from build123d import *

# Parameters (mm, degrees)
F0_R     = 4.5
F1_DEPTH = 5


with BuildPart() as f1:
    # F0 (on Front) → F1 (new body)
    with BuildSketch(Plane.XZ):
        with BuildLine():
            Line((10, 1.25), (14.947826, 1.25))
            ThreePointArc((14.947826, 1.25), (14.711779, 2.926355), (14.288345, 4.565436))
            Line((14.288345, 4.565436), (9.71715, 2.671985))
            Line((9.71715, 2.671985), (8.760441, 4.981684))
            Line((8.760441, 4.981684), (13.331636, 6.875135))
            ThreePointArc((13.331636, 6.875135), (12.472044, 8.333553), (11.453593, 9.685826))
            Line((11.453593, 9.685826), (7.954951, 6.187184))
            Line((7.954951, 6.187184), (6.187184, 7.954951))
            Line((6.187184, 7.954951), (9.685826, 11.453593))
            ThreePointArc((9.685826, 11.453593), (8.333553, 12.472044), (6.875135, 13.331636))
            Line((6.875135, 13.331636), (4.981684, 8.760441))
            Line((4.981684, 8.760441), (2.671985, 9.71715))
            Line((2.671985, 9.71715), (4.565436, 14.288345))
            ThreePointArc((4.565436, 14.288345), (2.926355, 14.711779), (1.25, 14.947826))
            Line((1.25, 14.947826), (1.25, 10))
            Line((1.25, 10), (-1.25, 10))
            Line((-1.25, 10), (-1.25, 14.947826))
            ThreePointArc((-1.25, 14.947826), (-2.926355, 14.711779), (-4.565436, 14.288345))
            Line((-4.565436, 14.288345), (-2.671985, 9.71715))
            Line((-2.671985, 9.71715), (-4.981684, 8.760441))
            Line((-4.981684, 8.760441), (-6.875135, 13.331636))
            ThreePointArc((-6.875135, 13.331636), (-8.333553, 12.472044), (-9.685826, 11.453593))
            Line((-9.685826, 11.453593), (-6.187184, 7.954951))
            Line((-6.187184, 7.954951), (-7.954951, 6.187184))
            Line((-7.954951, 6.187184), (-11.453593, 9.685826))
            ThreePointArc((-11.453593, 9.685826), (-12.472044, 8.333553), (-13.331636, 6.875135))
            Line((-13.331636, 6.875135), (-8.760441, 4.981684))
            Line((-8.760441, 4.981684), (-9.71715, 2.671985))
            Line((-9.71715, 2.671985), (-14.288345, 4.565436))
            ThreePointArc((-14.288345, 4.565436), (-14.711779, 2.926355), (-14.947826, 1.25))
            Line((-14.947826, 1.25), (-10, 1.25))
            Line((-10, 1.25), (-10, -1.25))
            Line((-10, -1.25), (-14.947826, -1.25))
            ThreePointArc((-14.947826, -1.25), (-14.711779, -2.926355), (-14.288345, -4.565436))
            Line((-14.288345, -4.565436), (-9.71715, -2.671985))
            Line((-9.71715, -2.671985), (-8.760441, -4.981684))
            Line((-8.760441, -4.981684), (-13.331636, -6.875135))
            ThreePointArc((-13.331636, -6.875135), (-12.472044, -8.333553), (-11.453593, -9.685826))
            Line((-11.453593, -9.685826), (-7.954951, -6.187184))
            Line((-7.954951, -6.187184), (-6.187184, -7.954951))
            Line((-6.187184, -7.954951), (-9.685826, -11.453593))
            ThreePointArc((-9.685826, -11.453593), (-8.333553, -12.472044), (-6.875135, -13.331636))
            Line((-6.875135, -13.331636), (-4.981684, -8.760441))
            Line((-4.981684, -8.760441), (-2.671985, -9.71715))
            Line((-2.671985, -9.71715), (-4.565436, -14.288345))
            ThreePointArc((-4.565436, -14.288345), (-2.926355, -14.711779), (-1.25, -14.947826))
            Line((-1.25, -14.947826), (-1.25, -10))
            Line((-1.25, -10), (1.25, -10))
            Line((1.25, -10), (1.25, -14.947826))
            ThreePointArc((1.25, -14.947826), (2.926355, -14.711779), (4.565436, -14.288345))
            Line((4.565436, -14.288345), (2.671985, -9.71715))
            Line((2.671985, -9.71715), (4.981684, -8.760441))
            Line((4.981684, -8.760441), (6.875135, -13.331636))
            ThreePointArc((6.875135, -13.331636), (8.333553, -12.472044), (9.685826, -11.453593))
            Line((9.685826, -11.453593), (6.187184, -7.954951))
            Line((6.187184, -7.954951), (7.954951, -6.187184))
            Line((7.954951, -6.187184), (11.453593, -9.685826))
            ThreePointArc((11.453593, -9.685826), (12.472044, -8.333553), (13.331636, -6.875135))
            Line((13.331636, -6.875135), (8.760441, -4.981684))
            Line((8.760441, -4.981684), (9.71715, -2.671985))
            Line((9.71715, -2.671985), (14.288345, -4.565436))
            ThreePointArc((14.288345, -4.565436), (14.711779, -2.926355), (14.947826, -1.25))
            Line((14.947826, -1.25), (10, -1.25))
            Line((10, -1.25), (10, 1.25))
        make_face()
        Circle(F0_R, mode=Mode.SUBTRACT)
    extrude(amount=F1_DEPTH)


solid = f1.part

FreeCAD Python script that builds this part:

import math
import FreeCAD as App
import Part
import Sketcher
Q = App.Units.Quantity

doc = App.newDocument("Part")
body = doc.addObject("PartDesign::Body", "Body")

sketch1 = body.newObject("Sketcher::SketchObject", "Sketch")
sketch1.AttachmentSupport = (doc.getObject("XZ_Plane"), [""])
sketch1.MapMode = "FlatFace"
sketch1.addGeometry(Part.LineSegment(App.Vector(10, 1.25, 0), App.Vector(14.947826, 1.25, 0)), False)
sketch1.addGeometry(Part.ArcOfCircle(Part.Circle(App.Vector(-0.000054, -0.00001, 0), App.Vector(0, 0, 1), 15.000055), math.radians(4.780212), math.radians(17.719781)), False)
sketch1.addGeometry(Part.LineSegment(App.Vector(14.288345, 4.565436, 0), App.Vector(9.71715, 2.671985, 0)), False)
sketch1.addGeometry(Part.LineSegment(App.Vector(9.71715, 2.671985, 0), App.Vector(8.760441, 4.981684, 0)), False)
sketch1.addGeometry(Part.LineSegment(App.Vector(8.760441, 4.981684, 0), App.Vector(13.331636, 6.875135, 0)), False)
sketch1.addGeometry(Part.ArcOfCircle(Part.Circle(App.Vector(-0.000096, -0.000061, 0), App.Vector(0, 0, 1), 15.000113), math.radians(27.280232), math.radians(40.219749)), False)
sketch1.addGeometry(Part.LineSegment(App.Vector(11.453593, 9.685826, 0), App.Vector(7.954951, 6.187184, 0)), False)
sketch1.addGeometry(Part.LineSegment(App.Vector(7.954951, 6.187184, 0), App.Vector(6.187184, 7.954951, 0)), False)
sketch1.addGeometry(Part.LineSegment(App.Vector(6.187184, 7.954951, 0), App.Vector(9.685826, 11.453593, 0)), False)
sketch1.addGeometry(Part.ArcOfCircle(Part.Circle(App.Vector(-0.000061, -0.000096, 0), App.Vector(0, 0, 1), 15.000113), math.radians(49.780251), math.radians(62.719768)), False)
sketch1.addGeometry(Part.LineSegment(App.Vector(6.875135, 13.331636, 0), App.Vector(4.981684, 8.760441, 0)), False)
sketch1.addGeometry(Part.LineSegment(App.Vector(4.981684, 8.760441, 0), App.Vector(2.671985, 9.71715, 0)), False)
sketch1.addGeometry(Part.LineSegment(App.Vector(2.671985, 9.71715, 0), App.Vector(4.565436, 14.288345, 0)), False)
sketch1.addGeometry(Part.ArcOfCircle(Part.Circle(App.Vector(-0.00001, -0.000054, 0), App.Vector(0, 0, 1), 15.000055), math.radians(72.280219), math.radians(85.219788)), False)
sketch1.addGeometry(Part.LineSegment(App.Vector(1.25, 14.947826, 0), App.Vector(1.25, 10, 0)), False)
sketch1.addGeometry(Part.LineSegment(App.Vector(1.25, 10, 0), App.Vector(-1.25, 10, 0)), False)
sketch1.addGeometry(Part.LineSegment(App.Vector(-1.25, 10, 0), App.Vector(-1.25, 14.947826, 0)), False)
sketch1.addGeometry(Part.ArcOfCircle(Part.Circle(App.Vector(0.00001, -0.000054, 0), App.Vector(0, 0, 1), 15.000055), math.radians(94.780212), math.radians(107.719781)), False)
sketch1.addGeometry(Part.LineSegment(App.Vector(-4.565436, 14.288345, 0), App.Vector(-2.671985, 9.71715, 0)), False)
sketch1.addGeometry(Part.LineSegment(App.Vector(-2.671985, 9.71715, 0), App.Vector(-4.981684, 8.760441, 0)), False)
sketch1.addGeometry(Part.LineSegment(App.Vector(-4.981684, 8.760441, 0), App.Vector(-6.875135, 13.331636, 0)), False)
sketch1.addGeometry(Part.ArcOfCircle(Part.Circle(App.Vector(0.000061, -0.000096, 0), App.Vector(0, 0, 1), 15.000113), math.radians(117.280232), math.radians(130.219749)), False)
sketch1.addGeometry(Part.LineSegment(App.Vector(-9.685826, 11.453593, 0), App.Vector(-6.187184, 7.954951, 0)), False)
sketch1.addGeometry(Part.LineSegment(App.Vector(-6.187184, 7.954951, 0), App.Vector(-7.954951, 6.187184, 0)), False)
sketch1.addGeometry(Part.LineSegment(App.Vector(-7.954951, 6.187184, 0), App.Vector(-11.453593, 9.685826, 0)), False)
sketch1.addGeometry(Part.ArcOfCircle(Part.Circle(App.Vector(0.000096, -0.000061, 0), App.Vector(0, 0, 1), 15.000113), math.radians(139.780251), math.radians(152.719768)), False)
sketch1.addGeometry(Part.LineSegment(App.Vector(-13.331636, 6.875135, 0), App.Vector(-8.760441, 4.981684, 0)), False)
sketch1.addGeometry(Part.LineSegment(App.Vector(-8.760441, 4.981684, 0), App.Vector(-9.71715, 2.671985, 0)), False)
sketch1.addGeometry(Part.LineSegment(App.Vector(-9.71715, 2.671985, 0), App.Vector(-14.288345, 4.565436, 0)), False)
sketch1.addGeometry(Part.ArcOfCircle(Part.Circle(App.Vector(0.000054, -0.00001, 0), App.Vector(0, 0, 1), 15.000055), math.radians(162.280219), math.radians(175.219788)), False)
sketch1.addGeometry(Part.LineSegment(App.Vector(-14.947826, 1.25, 0), App.Vector(-10, 1.25, 0)), False)
sketch1.addGeometry(Part.LineSegment(App.Vector(-10, 1.25, 0), App.Vector(-10, -1.25, 0)), False)
sketch1.addGeometry(Part.LineSegment(App.Vector(-10, -1.25, 0), App.Vector(-14.947826, -1.25, 0)), False)
sketch1.addGeometry(Part.ArcOfCircle(Part.Circle(App.Vector(0.000054, 0.00001, 0), App.Vector(0, 0, 1), 15.000055), math.radians(-175.219788), math.radians(-162.280219)), False)
sketch1.addGeometry(Part.LineSegment(App.Vector(-14.288345, -4.565436, 0), App.Vector(-9.71715, -2.671985, 0)), False)
sketch1.addGeometry(Part.LineSegment(App.Vector(-9.71715, -2.671985, 0), App.Vector(-8.760441, -4.981684, 0)), False)
sketch1.addGeometry(Part.LineSegment(App.Vector(-8.760441, -4.981684, 0), App.Vector(-13.331636, -6.875135, 0)), False)
sketch1.addGeometry(Part.ArcOfCircle(Part.Circle(App.Vector(0.000096, 0.000061, 0), App.Vector(0, 0, 1), 15.000113), math.radians(-152.719768), math.radians(-139.780251)), False)
sketch1.addGeometry(Part.LineSegment(App.Vector(-11.453593, -9.685826, 0), App.Vector(-7.954951, -6.187184, 0)), False)
sketch1.addGeometry(Part.LineSegment(App.Vector(-7.954951, -6.187184, 0), App.Vector(-6.187184, -7.954951, 0)), False)
sketch1.addGeometry(Part.LineSegment(App.Vector(-6.187184, -7.954951, 0), App.Vector(-9.685826, -11.453593, 0)), False)
sketch1.addGeometry(Part.ArcOfCircle(Part.Circle(App.Vector(0.000061, 0.000096, 0), App.Vector(0, 0, 1), 15.000113), math.radians(-130.219749), math.radians(-117.280232)), False)
sketch1.addGeometry(Part.LineSegment(App.Vector(-6.875135, -13.331636, 0), App.Vector(-4.981684, -8.760441, 0)), False)
sketch1.addGeometry(Part.LineSegment(App.Vector(-4.981684, -8.760441, 0), App.Vector(-2.671985, -9.71715, 0)), False)
sketch1.addGeometry(Part.LineSegment(App.Vector(-2.671985, -9.71715, 0), App.Vector(-4.565436, -14.288345, 0)), False)
sketch1.addGeometry(Part.ArcOfCircle(Part.Circle(App.Vector(0.00001, 0.000054, 0), App.Vector(0, 0, 1), 15.000055), math.radians(-107.719781), math.radians(-94.780212)), False)
sketch1.addGeometry(Part.LineSegment(App.Vector(-1.25, -14.947826, 0), App.Vector(-1.25, -10, 0)), False)
sketch1.addGeometry(Part.LineSegment(App.Vector(-1.25, -10, 0), App.Vector(1.25, -10, 0)), False)
sketch1.addGeometry(Part.LineSegment(App.Vector(1.25, -10, 0), App.Vector(1.25, -14.947826, 0)), False)
sketch1.addGeometry(Part.ArcOfCircle(Part.Circle(App.Vector(-0.00001, 0.000054, 0), App.Vector(0, 0, 1), 15.000055), math.radians(-85.219788), math.radians(-72.280219)), False)
sketch1.addGeometry(Part.LineSegment(App.Vector(4.565436, -14.288345, 0), App.Vector(2.671985, -9.71715, 0)), False)
sketch1.addGeometry(Part.LineSegment(App.Vector(2.671985, -9.71715, 0), App.Vector(4.981684, -8.760441, 0)), False)
sketch1.addGeometry(Part.LineSegment(App.Vector(4.981684, -8.760441, 0), App.Vector(6.875135, -13.331636, 0)), False)
sketch1.addGeometry(Part.ArcOfCircle(Part.Circle(App.Vector(-0.000061, 0.000096, 0), App.Vector(0, 0, 1), 15.000113), math.radians(-62.719768), math.radians(-49.780251)), False)
sketch1.addGeometry(Part.LineSegment(App.Vector(9.685826, -11.453593, 0), App.Vector(6.187184, -7.954951, 0)), False)
sketch1.addGeometry(Part.LineSegment(App.Vector(6.187184, -7.954951, 0), App.Vector(7.954951, -6.187184, 0)), False)
sketch1.addGeometry(Part.LineSegment(App.Vector(7.954951, -6.187184, 0), App.Vector(11.453593, -9.685826, 0)), False)
sketch1.addGeometry(Part.ArcOfCircle(Part.Circle(App.Vector(-0.000096, 0.000061, 0), App.Vector(0, 0, 1), 15.000113), math.radians(-40.219749), math.radians(-27.280232)), False)
sketch1.addGeometry(Part.LineSegment(App.Vector(13.331636, -6.875135, 0), App.Vector(8.760441, -4.981684, 0)), False)
sketch1.addGeometry(Part.LineSegment(App.Vector(8.760441, -4.981684, 0), App.Vector(9.71715, -2.671985, 0)), False)
sketch1.addGeometry(Part.LineSegment(App.Vector(9.71715, -2.671985, 0), App.Vector(14.288345, -4.565436, 0)), False)
sketch1.addGeometry(Part.ArcOfCircle(Part.Circle(App.Vector(-0.000054, 0.00001, 0), App.Vector(0, 0, 1), 15.000055), math.radians(-17.719781), math.radians(-4.780212)), False)
sketch1.addGeometry(Part.LineSegment(App.Vector(14.947826, -1.25, 0), App.Vector(10, -1.25, 0)), False)
sketch1.addGeometry(Part.LineSegment(App.Vector(10, -1.25, 0), App.Vector(10, 1.25, 0)), False)
sketch1.addGeometry(Part.Circle(App.Vector(0, 0, 0), App.Vector(0, 0, 1), 4.5), False)
sketch1.addConstraint(Sketcher.Constraint("Coincident", 0, 2, 1, 1))
sketch1.addConstraint(Sketcher.Constraint("Coincident", 1, 2, 2, 1))
sketch1.addConstraint(Sketcher.Constraint("Coincident", 2, 2, 3, 1))
sketch1.addConstraint(Sketcher.Constraint("Coincident", 3, 2, 4, 1))
sketch1.addConstraint(Sketcher.Constraint("Coincident", 4, 2, 5, 1))
sketch1.addConstraint(Sketcher.Constraint("Coincident", 5, 2, 6, 1))
sketch1.addConstraint(Sketcher.Constraint("Coincident", 6, 2, 7, 1))
sketch1.addConstraint(Sketcher.Constraint("Coincident", 7, 2, 8, 1))
sketch1.addConstraint(Sketcher.Constraint("Coincident", 8, 2, 9, 1))
sketch1.addConstraint(Sketcher.Constraint("Coincident", 9, 2, 10, 1))
sketch1.addConstraint(Sketcher.Constraint("Coincident", 10, 2, 11, 1))
sketch1.addConstraint(Sketcher.Constraint("Coincident", 11, 2, 12, 1))
sketch1.addConstraint(Sketcher.Constraint("Coincident", 12, 2, 13, 1))
sketch1.addConstraint(Sketcher.Constraint("Coincident", 13, 2, 14, 1))
sketch1.addConstraint(Sketcher.Constraint("Coincident", 14, 2, 15, 1))
sketch1.addConstraint(Sketcher.Constraint("Coincident", 15, 2, 16, 1))
sketch1.addConstraint(Sketcher.Constraint("Coincident", 16, 2, 17, 1))
sketch1.addConstraint(Sketcher.Constraint("Coincident", 17, 2, 18, 1))
sketch1.addConstraint(Sketcher.Constraint("Coincident", 18, 2, 19, 1))
sketch1.addConstraint(Sketcher.Constraint("Coincident", 19, 2, 20, 1))
sketch1.addConstraint(Sketcher.Constraint("Coincident", 20, 2, 21, 1))
sketch1.addConstraint(Sketcher.Constraint("Coincident", 21, 2, 22, 1))
sketch1.addConstraint(Sketcher.Constraint("Coincident", 22, 2, 23, 1))
sketch1.addConstraint(Sketcher.Constraint("Coincident", 23, 2, 24, 1))
sketch1.addConstraint(Sketcher.Constraint("Coincident", 24, 2, 25, 1))
sketch1.addConstraint(Sketcher.Constraint("Coincident", 25, 2, 26, 1))
sketch1.addConstraint(Sketcher.Constraint("Coincident", 26, 2, 27, 1))
sketch1.addConstraint(Sketcher.Constraint("Coincident", 27, 2, 28, 1))
sketch1.addConstraint(Sketcher.Constraint("Coincident", 28, 2, 29, 1))
sketch1.addConstraint(Sketcher.Constraint("Coincident", 29, 2, 30, 1))
sketch1.addConstraint(Sketcher.Constraint("Coincident", 30, 2, 31, 1))
sketch1.addConstraint(Sketcher.Constraint("Coincident", 31, 2, 32, 1))
sketch1.addConstraint(Sketcher.Constraint("Coincident", 32, 2, 33, 1))
sketch1.addConstraint(Sketcher.Constraint("Coincident", 33, 2, 34, 1))
sketch1.addConstraint(Sketcher.Constraint("Coincident", 34, 2, 35, 1))
sketch1.addConstraint(Sketcher.Constraint("Coincident", 35, 2, 36, 1))
sketch1.addConstraint(Sketcher.Constraint("Coincident", 36, 2, 37, 1))
sketch1.addConstraint(Sketcher.Constraint("Coincident", 37, 2, 38, 1))
sketch1.addConstraint(Sketcher.Constraint("Coincident", 38, 2, 39, 1))
sketch1.addConstraint(Sketcher.Constraint("Coincident", 39, 2, 40, 1))
sketch1.addConstraint(Sketcher.Constraint("Coincident", 40, 2, 41, 1))
sketch1.addConstraint(Sketcher.Constraint("Coincident", 41, 2, 42, 1))
sketch1.addConstraint(Sketcher.Constraint("Coincident", 42, 2, 43, 1))
sketch1.addConstraint(Sketcher.Constraint("Coincident", 43, 2, 44, 1))
sketch1.addConstraint(Sketcher.Constraint("Coincident", 44, 2, 45, 1))
sketch1.addConstraint(Sketcher.Constraint("Coincident", 45, 2, 46, 1))
sketch1.addConstraint(Sketcher.Constraint("Coincident", 46, 2, 47, 1))
sketch1.addConstraint(Sketcher.Constraint("Coincident", 47, 2, 48, 1))
sketch1.addConstraint(Sketcher.Constraint("Coincident", 48, 2, 49, 1))
sketch1.addConstraint(Sketcher.Constraint("Coincident", 49, 2, 50, 1))
sketch1.addConstraint(Sketcher.Constraint("Coincident", 50, 2, 51, 1))
sketch1.addConstraint(Sketcher.Constraint("Coincident", 51, 2, 52, 1))
sketch1.addConstraint(Sketcher.Constraint("Coincident", 52, 2, 53, 1))
sketch1.addConstraint(Sketcher.Constraint("Coincident", 53, 2, 54, 1))
sketch1.addConstraint(Sketcher.Constraint("Coincident", 54, 2, 55, 1))
sketch1.addConstraint(Sketcher.Constraint("Coincident", 55, 2, 56, 1))
sketch1.addConstraint(Sketcher.Constraint("Coincident", 56, 2, 57, 1))
sketch1.addConstraint(Sketcher.Constraint("Coincident", 57, 2, 58, 1))
sketch1.addConstraint(Sketcher.Constraint("Coincident", 58, 2, 59, 1))
sketch1.addConstraint(Sketcher.Constraint("Coincident", 59, 2, 60, 1))
sketch1.addConstraint(Sketcher.Constraint("Coincident", 60, 2, 61, 1))
sketch1.addConstraint(Sketcher.Constraint("Coincident", 61, 2, 62, 1))
sketch1.addConstraint(Sketcher.Constraint("Coincident", 62, 2, 63, 1))
sketch1.addConstraint(Sketcher.Constraint("Coincident", 63, 2, 0, 1))
sketch1.addConstraint(Sketcher.Constraint("Horizontal", 0))
sketch1.addConstraint(Sketcher.Constraint("Vertical", 14))
sketch1.addConstraint(Sketcher.Constraint("Horizontal", 15))
sketch1.addConstraint(Sketcher.Constraint("Vertical", 16))
sketch1.addConstraint(Sketcher.Constraint("Horizontal", 30))
sketch1.addConstraint(Sketcher.Constraint("Vertical", 31))
sketch1.addConstraint(Sketcher.Constraint("Horizontal", 32))
sketch1.addConstraint(Sketcher.Constraint("Vertical", 46))
sketch1.addConstraint(Sketcher.Constraint("Horizontal", 47))
sketch1.addConstraint(Sketcher.Constraint("Vertical", 48))
sketch1.addConstraint(Sketcher.Constraint("Horizontal", 62))
sketch1.addConstraint(Sketcher.Constraint("Vertical", 63))
sketch1.addConstraint(Sketcher.Constraint("Coincident", 64, 3, -1, 1))
sketch1.addConstraint(Sketcher.Constraint("Equal", 5, 9))
sketch1.addConstraint(Sketcher.Constraint("Equal", 1, 13))
sketch1.addConstraint(Sketcher.Constraint("Equal", 13, 17))
sketch1.addConstraint(Sketcher.Constraint("Equal", 9, 21))
sketch1.addConstraint(Sketcher.Constraint("Equal", 21, 25))
sketch1.addConstraint(Sketcher.Constraint("Equal", 17, 29))
sketch1.addConstraint(Sketcher.Constraint("Equal", 29, 33))
sketch1.addConstraint(Sketcher.Constraint("Equal", 25, 37))
sketch1.addConstraint(Sketcher.Constraint("Equal", 37, 41))
sketch1.addConstraint(Sketcher.Constraint("Equal", 33, 45))
sketch1.addConstraint(Sketcher.Constraint("Equal", 45, 49))
sketch1.addConstraint(Sketcher.Constraint("Equal", 41, 53))
sketch1.addConstraint(Sketcher.Constraint("Equal", 53, 57))
sketch1.addConstraint(Sketcher.Constraint("Equal", 49, 61))
sketch1.addConstraint(Sketcher.Constraint("Symmetric", 1, 3, 33, 3, -1, 1))
sketch1.addConstraint(Sketcher.Constraint("Symmetric", 5, 3, 37, 3, -1, 1))
sketch1.addConstraint(Sketcher.Constraint("Symmetric", 9, 3, 41, 3, -1, 1))
sketch1.addConstraint(Sketcher.Constraint("Symmetric", 13, 3, 45, 3, -1, 1))
sketch1.addConstraint(Sketcher.Constraint("Symmetric", 17, 3, 49, 3, -1, 1))
sketch1.addConstraint(Sketcher.Constraint("Symmetric", 21, 3, 53, 3, -1, 1))
sketch1.addConstraint(Sketcher.Constraint("Symmetric", 25, 3, 57, 3, -1, 1))
sketch1.addConstraint(Sketcher.Constraint("Symmetric", 29, 3, 61, 3, -1, 1))
sketch1.addConstraint(Sketcher.Constraint("Symmetric", 2, 2, 34, 2, -1, 1))
sketch1.addConstraint(Sketcher.Constraint("Symmetric", 3, 2, 35, 2, -1, 1))
sketch1.addConstraint(Sketcher.Constraint("Symmetric", 6, 2, 38, 2, -1, 1))
sketch1.addConstraint(Sketcher.Constraint("Symmetric", 7, 2, 39, 2, -1, 1))
sketch1.addConstraint(Sketcher.Constraint("Symmetric", 10, 2, 42, 2, -1, 1))
sketch1.addConstraint(Sketcher.Constraint("Symmetric", 11, 2, 43, 2, -1, 1))
sketch1.addConstraint(Sketcher.Constraint("Symmetric", 14, 2, 46, 2, -1, 1))
sketch1.addConstraint(Sketcher.Constraint("Symmetric", 18, 2, 50, 2, -1, 1))
sketch1.addConstraint(Sketcher.Constraint("Symmetric", 19, 2, 51, 2, -1, 1))
sketch1.addConstraint(Sketcher.Constraint("Symmetric", 22, 2, 54, 2, -1, 1))
sketch1.addConstraint(Sketcher.Constraint("Symmetric", 23, 2, 55, 2, -1, 1))
sketch1.addConstraint(Sketcher.Constraint("Symmetric", 26, 2, 58, 2, -1, 1))
sketch1.addConstraint(Sketcher.Constraint("Symmetric", 27, 2, 59, 2, -1, 1))
sketch1.addConstraint(Sketcher.Constraint("Symmetric", 30, 2, 62, 2, -1, 1))
sketch1.addConstraint(Sketcher.Constraint("Symmetric", 13, 3, 17, 3, -2))
sketch1.addConstraint(Sketcher.Constraint("Symmetric", 9, 3, 21, 3, -2))
sketch1.addConstraint(Sketcher.Constraint("Symmetric", 5, 3, 25, 3, -2))
sketch1.addConstraint(Sketcher.Constraint("Symmetric", 1, 3, 29, 3, -2))
sketch1.addConstraint(Sketcher.Constraint("Symmetric", 11, 2, 18, 2, -2))
sketch1.addConstraint(Sketcher.Constraint("Symmetric", 10, 2, 19, 2, -2))
sketch1.addConstraint(Sketcher.Constraint("Symmetric", 7, 2, 22, 2, -2))
sketch1.addConstraint(Sketcher.Constraint("Symmetric", 6, 2, 23, 2, -2))
sketch1.addConstraint(Sketcher.Constraint("Symmetric", 3, 2, 26, 2, -2))
sketch1.addConstraint(Sketcher.Constraint("Symmetric", 2, 2, 27, 2, -2))
sketch1.addConstraint(Sketcher.Constraint("Perpendicular", 2, 3))
sketch1.addConstraint(Sketcher.Constraint("Perpendicular", 3, 4))
sketch1.addConstraint(Sketcher.Constraint("Perpendicular", 6, 7))
sketch1.addConstraint(Sketcher.Constraint("Perpendicular", 7, 8))
sketch1.addConstraint(Sketcher.Constraint("Perpendicular", 10, 11))
sketch1.addConstraint(Sketcher.Constraint("Perpendicular", 11, 12))
sketch1.addConstraint(Sketcher.Constraint("Perpendicular", 4, 18))
sketch1.addConstraint(Sketcher.Constraint("Perpendicular", 18, 19))
sketch1.addConstraint(Sketcher.Constraint("Perpendicular", 19, 20))
sketch1.addConstraint(Sketcher.Constraint("Perpendicular", 8, 22))
sketch1.addConstraint(Sketcher.Constraint("Perpendicular", 22, 23))
sketch1.addConstraint(Sketcher.Constraint("Perpendicular", 23, 24))
sketch1.addConstraint(Sketcher.Constraint("Perpendicular", 12, 26))
sketch1.addConstraint(Sketcher.Constraint("Perpendicular", 27, 28))
sketch1.addConstraint(Sketcher.Constraint("Perpendicular", 20, 34))
sketch1.addConstraint(Sketcher.Constraint("Perpendicular", 35, 36))
sketch1.addConstraint(Sketcher.Constraint("Perpendicular", 24, 38))
sketch1.addConstraint(Sketcher.Constraint("Perpendicular", 39, 40))
sketch1.addConstraint(Sketcher.Constraint("Perpendicular", 28, 42))
sketch1.addConstraint(Sketcher.Constraint("Perpendicular", 43, 44))
sketch1.addConstraint(Sketcher.Constraint("Perpendicular", 36, 50))
sketch1.addConstraint(Sketcher.Constraint("Perpendicular", 51, 52))
sketch1.addConstraint(Sketcher.Constraint("Perpendicular", 40, 54))
sketch1.addConstraint(Sketcher.Constraint("Perpendicular", 55, 56))
sketch1.addConstraint(Sketcher.Constraint("Perpendicular", 44, 58))
sketch1.addConstraint(Sketcher.Constraint("Perpendicular", 59, 60))
sketch1.addConstraint(Sketcher.Constraint("Horizontal", 13, 2, 16, 2))
sketch1.addConstraint(Sketcher.Constraint("Horizontal", 0, 2, 29, 2))
sketch1.addConstraint(Sketcher.Constraint("Horizontal", 45, 2, 48, 2))
sketch1.addConstraint(Sketcher.Constraint("Horizontal", 32, 2, 61, 2))
sketch1.addConstraint(Sketcher.Constraint("Equal", 62, 14))
sketch1.addConstraint(Sketcher.Constraint("Equal", 47, 31))
sketch1.addConstraint(Sketcher.Constraint("Equal", 2, 4))
sketch1.addConstraint(Sketcher.Constraint("Equal", 4, 6))
sketch1.addConstraint(Sketcher.Constraint("Equal", 3, 7))
sketch1.addConstraint(Sketcher.Constraint("Equal", 6, 8))
sketch1.addConstraint(Sketcher.Constraint("Equal", 8, 10))
sketch1.addConstraint(Sketcher.Constraint("Equal", 7, 11))
sketch1.addConstraint(Sketcher.Constraint("Equal", 10, 12))
sketch1.addConstraint(Sketcher.Constraint("Diameter", 64, Q("9 mm")))
sketch1.addConstraint(Sketcher.Constraint("DistanceX", 15, 2, 15, 1, Q("2.5 mm")))
sketch1.addConstraint(Sketcher.Constraint("DistanceY", -1, 1, 14, 2, Q("10 mm")))
sketch1.addConstraint(Sketcher.Constraint("DistanceX", 30, 2, -1, 1, Q("10 mm")))
sketch1.addConstraint(Sketcher.Constraint("Angle", 2, Q("-157.5 deg")))
sketch1.addConstraint(Sketcher.Constraint("Distance", 3, Q("2.5 mm")))
sketch1.addConstraint(Sketcher.Constraint("Radius", 1, Q("15.000055 mm")))
sketch1.addConstraint(Sketcher.Constraint("Radius", 5, Q("15.000113 mm")))
sketch1.addConstraint(Sketcher.Constraint("DistanceX", 0, 1, 0, 2, Q("4.947826 mm")))
sketch1.addConstraint(Sketcher.Constraint("DistanceX", -1, 1, 2, 2, Q("9.71715 mm")))
sketch1.addConstraint(Sketcher.Constraint("DistanceX", -1, 1, 6, 2, Q("7.954951 mm")))
sketch1.addConstraint(Sketcher.Constraint("DistanceY", -1, 1, 7, 2, Q("7.954951 mm")))
sketch1.addConstraint(Sketcher.Constraint("DistanceY", -1, 1, 10, 2, Q("8.760441 mm")))
sketch1.addConstraint(Sketcher.Constraint("Distance", 2, Q("4.947826 mm")))
sketch1.addConstraint(Sketcher.Constraint("DistanceY", -1, 1, 1, 2, Q("4.565436 mm")))
sketch1.addConstraint(Sketcher.Constraint("DistanceX", -1, 1, 9, 2, Q("6.875135 mm")))
pad1 = body.newObject("PartDesign::Pad", "Pad")
pad1.Profile = sketch1
pad1.Length = 5

doc.recompute()
